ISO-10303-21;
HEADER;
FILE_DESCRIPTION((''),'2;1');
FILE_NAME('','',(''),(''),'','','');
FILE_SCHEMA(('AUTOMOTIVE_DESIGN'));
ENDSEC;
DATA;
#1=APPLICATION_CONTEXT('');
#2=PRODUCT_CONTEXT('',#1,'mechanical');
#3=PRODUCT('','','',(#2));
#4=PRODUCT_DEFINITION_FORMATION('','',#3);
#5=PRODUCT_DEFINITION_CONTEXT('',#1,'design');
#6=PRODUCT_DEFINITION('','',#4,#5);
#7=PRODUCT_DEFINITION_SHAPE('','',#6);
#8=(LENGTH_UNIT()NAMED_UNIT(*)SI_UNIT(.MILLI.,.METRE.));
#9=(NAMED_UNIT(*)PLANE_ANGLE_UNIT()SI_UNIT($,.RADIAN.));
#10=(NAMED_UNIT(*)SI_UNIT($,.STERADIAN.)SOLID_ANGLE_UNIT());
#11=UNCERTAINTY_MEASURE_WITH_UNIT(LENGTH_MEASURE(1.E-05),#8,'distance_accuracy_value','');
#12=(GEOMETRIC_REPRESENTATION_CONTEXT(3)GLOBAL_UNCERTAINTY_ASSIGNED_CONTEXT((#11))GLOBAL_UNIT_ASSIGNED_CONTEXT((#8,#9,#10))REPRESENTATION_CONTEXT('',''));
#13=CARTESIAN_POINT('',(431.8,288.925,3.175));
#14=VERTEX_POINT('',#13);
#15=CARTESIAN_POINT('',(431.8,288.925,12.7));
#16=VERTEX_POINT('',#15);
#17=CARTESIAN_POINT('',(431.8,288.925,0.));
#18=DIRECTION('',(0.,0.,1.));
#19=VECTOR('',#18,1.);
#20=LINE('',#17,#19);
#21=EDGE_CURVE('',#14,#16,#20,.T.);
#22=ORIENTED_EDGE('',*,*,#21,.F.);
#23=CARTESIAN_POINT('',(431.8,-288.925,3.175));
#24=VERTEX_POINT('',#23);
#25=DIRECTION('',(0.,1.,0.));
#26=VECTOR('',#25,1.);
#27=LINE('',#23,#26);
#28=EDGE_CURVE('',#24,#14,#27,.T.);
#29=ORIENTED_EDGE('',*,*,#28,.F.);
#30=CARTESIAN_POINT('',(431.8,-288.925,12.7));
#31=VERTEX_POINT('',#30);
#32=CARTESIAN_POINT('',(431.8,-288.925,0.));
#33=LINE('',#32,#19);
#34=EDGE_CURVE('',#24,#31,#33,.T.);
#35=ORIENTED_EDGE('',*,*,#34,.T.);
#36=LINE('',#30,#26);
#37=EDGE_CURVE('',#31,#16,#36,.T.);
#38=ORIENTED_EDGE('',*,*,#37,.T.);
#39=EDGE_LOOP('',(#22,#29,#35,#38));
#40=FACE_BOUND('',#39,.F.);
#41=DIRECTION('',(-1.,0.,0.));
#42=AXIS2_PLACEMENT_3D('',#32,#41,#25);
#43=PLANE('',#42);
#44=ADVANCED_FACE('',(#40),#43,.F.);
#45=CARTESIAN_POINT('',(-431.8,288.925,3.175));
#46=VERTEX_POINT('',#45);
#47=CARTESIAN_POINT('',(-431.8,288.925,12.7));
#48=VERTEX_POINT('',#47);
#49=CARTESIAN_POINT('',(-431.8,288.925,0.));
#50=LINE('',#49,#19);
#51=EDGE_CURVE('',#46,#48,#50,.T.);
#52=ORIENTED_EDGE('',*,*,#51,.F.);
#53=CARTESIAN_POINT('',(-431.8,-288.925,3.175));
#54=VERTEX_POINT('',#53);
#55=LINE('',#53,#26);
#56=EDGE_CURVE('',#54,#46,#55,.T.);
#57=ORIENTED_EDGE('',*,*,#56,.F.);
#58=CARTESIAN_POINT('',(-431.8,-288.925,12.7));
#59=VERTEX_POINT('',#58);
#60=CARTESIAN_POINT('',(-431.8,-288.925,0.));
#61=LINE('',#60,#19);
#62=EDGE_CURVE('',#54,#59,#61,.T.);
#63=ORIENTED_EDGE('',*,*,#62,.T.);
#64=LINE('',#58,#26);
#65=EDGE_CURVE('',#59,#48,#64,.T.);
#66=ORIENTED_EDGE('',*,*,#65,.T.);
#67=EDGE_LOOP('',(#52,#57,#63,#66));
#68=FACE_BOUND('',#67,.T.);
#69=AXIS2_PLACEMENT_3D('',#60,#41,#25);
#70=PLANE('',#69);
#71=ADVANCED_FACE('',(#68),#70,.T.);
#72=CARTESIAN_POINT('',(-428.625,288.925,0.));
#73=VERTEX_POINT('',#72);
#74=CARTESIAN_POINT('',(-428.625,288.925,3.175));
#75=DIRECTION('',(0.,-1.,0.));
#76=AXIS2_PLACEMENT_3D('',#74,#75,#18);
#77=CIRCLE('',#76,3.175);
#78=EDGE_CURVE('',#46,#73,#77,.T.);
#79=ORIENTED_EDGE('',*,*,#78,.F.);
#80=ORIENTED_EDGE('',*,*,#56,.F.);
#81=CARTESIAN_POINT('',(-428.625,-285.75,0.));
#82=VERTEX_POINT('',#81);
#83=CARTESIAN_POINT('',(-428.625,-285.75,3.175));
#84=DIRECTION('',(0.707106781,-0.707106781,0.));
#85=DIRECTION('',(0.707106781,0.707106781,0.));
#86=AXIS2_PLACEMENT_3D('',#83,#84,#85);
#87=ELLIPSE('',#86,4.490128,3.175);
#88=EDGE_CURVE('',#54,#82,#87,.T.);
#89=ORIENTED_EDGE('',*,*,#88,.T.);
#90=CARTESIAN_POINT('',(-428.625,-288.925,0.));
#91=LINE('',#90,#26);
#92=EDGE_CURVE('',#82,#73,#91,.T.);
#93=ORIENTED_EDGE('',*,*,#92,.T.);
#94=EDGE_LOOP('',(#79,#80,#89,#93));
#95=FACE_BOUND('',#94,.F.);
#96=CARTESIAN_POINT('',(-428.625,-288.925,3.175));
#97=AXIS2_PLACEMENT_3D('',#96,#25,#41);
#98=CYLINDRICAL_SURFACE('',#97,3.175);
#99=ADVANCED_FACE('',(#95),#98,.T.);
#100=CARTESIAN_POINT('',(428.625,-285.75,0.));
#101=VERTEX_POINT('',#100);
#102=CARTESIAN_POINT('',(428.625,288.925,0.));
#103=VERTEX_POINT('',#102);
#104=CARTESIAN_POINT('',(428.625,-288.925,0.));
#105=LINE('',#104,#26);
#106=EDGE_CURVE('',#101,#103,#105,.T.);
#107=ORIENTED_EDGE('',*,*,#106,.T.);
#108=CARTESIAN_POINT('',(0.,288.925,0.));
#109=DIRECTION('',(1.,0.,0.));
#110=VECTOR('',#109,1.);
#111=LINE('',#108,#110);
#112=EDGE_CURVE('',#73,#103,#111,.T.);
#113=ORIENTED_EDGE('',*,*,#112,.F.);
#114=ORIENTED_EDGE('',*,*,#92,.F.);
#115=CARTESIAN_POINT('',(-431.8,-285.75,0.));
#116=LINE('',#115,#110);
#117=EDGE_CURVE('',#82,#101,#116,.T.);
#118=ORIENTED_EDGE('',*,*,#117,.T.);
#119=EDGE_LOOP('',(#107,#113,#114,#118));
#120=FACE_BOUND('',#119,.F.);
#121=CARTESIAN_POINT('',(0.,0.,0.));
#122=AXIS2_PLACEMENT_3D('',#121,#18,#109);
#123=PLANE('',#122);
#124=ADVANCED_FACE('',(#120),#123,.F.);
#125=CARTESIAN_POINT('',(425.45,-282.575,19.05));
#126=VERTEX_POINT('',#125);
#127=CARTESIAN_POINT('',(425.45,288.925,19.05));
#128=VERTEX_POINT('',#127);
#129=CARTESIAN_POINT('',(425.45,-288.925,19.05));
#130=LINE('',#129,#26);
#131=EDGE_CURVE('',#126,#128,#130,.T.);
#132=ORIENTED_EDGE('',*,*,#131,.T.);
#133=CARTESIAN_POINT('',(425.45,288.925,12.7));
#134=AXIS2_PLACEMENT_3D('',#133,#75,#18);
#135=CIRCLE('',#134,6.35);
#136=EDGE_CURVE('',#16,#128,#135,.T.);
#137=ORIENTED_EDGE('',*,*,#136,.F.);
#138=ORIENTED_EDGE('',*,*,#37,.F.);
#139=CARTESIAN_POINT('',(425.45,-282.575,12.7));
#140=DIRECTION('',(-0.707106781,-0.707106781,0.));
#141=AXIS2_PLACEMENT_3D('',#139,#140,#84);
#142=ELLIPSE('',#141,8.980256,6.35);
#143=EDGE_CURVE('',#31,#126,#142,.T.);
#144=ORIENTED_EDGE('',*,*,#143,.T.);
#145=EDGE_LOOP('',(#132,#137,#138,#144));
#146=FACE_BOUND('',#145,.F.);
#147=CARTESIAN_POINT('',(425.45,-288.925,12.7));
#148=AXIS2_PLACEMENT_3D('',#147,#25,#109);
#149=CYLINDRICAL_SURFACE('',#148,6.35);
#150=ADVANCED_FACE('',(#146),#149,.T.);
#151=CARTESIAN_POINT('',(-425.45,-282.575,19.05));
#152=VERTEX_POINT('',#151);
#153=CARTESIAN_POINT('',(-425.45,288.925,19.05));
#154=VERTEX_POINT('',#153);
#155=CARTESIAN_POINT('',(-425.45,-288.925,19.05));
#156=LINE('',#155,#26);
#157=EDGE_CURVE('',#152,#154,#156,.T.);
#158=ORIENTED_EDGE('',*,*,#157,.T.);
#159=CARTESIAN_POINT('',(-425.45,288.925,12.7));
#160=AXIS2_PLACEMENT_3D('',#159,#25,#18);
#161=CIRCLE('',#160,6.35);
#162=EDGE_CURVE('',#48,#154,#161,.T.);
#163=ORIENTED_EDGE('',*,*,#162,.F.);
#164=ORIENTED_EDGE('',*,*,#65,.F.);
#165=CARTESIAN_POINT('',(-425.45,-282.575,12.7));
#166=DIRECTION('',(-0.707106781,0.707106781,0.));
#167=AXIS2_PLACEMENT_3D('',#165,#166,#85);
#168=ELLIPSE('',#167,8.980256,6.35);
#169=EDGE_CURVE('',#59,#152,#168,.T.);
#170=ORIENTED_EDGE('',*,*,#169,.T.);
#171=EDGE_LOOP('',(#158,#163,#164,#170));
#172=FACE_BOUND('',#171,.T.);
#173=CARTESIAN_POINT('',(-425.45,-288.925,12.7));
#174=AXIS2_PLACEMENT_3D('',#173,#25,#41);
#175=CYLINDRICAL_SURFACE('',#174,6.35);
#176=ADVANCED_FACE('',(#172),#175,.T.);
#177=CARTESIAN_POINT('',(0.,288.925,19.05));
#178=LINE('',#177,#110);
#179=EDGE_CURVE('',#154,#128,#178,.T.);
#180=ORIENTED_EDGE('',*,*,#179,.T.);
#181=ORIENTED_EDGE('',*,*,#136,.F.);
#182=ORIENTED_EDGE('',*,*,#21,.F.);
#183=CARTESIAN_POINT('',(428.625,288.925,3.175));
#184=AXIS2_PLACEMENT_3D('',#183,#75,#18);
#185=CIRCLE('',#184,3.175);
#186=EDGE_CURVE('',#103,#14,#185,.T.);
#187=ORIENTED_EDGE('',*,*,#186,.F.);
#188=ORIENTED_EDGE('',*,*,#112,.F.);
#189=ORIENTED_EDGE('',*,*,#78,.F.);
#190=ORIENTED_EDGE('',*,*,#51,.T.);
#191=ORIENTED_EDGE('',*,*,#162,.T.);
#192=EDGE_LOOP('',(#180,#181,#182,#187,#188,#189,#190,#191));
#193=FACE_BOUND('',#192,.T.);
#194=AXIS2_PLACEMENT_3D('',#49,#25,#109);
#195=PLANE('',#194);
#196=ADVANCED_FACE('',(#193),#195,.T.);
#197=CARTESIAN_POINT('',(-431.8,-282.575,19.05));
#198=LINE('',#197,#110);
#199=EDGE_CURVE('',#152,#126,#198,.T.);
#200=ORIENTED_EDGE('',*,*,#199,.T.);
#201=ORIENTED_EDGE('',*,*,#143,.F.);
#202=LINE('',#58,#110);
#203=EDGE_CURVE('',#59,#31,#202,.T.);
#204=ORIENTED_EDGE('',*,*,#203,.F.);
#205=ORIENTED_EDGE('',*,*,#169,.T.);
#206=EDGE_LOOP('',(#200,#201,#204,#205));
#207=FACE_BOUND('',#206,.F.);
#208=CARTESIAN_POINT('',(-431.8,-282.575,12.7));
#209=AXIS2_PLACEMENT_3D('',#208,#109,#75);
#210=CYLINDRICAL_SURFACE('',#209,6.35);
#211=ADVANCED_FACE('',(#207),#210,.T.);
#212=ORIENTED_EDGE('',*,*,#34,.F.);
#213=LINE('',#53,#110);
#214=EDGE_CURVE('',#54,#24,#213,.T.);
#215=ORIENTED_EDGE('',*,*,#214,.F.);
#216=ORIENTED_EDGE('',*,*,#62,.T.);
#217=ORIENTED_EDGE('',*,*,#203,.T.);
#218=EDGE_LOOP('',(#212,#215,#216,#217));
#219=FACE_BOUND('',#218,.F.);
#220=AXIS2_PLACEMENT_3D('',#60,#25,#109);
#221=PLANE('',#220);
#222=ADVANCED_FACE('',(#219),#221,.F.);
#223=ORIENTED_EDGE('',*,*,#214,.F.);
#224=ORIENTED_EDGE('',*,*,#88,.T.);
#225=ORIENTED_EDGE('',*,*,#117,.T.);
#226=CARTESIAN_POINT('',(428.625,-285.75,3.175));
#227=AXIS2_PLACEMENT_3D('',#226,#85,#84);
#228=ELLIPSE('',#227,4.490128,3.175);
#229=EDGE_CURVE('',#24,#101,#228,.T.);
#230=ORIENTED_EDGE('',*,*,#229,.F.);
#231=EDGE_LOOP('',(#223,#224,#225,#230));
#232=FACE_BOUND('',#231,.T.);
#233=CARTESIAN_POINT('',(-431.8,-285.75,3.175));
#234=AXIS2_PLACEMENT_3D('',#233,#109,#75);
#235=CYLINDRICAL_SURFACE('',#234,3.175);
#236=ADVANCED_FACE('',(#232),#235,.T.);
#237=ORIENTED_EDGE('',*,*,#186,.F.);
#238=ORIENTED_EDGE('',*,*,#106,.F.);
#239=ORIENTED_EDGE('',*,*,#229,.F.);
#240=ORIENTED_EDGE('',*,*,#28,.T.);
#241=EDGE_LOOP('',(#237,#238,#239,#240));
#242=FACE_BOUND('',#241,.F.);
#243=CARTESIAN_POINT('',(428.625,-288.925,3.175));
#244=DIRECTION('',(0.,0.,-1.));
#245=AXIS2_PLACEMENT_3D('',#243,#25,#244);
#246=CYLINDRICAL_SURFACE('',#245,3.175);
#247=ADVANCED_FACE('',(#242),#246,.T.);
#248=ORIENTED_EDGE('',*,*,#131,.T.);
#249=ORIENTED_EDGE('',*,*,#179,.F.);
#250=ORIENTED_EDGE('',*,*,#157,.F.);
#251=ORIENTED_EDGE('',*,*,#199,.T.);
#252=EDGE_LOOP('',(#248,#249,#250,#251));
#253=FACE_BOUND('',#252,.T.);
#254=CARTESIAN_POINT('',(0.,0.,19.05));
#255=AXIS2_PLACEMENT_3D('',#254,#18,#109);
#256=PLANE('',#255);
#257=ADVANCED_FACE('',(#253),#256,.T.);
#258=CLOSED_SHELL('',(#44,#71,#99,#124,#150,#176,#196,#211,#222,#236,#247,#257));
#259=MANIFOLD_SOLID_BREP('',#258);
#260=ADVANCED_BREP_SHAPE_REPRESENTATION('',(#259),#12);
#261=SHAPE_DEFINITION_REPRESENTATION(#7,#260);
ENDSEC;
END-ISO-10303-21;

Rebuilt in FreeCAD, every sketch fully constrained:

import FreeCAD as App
import Part
import Sketcher

V = App.Vector
Q = App.Units.Quantity


def edges_at(feature, points):
    """Names of the edges that pass closest to the given points."""
    edges = feature.Shape.Edges
    near = lambda p: min(range(len(edges)), key=lambda i: edges[i].distToShape(Part.Vertex(*p))[0])
    return sorted({f"Edge{near(p) + 1}" for p in points})

doc = App.newDocument("Part")
body = doc.addObject("PartDesign::Body", "Body")

sketch1 = body.newObject("Sketcher::SketchObject", "Sketch")
sketch1.AttachmentSupport = (doc.getObject("XY_Plane"), [""])
sketch1.MapMode = "FlatFace"
sketch1.addGeometry(Part.LineSegment(V(-432, 289, 0), V(-432, -289, 0)), False)
sketch1.addGeometry(Part.LineSegment(V(-432, -289, 0), V(432, -289, 0)), False)
sketch1.addGeometry(Part.LineSegment(V(432, -289, 0), V(432, 289, 0)), False)
sketch1.addGeometry(Part.LineSegment(V(432, 289, 0), V(-432, 289, 0)), False)
sketch1.addConstraint(Sketcher.Constraint("Coincident", 0, 2, 1, 1))
sketch1.addConstraint(Sketcher.Constraint("Coincident", 1, 2, 2, 1))
sketch1.addConstraint(Sketcher.Constraint("Coincident", 2, 2, 3, 1))
sketch1.addConstraint(Sketcher.Constraint("Coincident", 3, 2, 0, 1))
sketch1.addConstraint(Sketcher.Constraint("Vertical", 0))
sketch1.addConstraint(Sketcher.Constraint("Horizontal", 1))
sketch1.addConstraint(Sketcher.Constraint("Vertical", 2))
sketch1.addConstraint(Sketcher.Constraint("Horizontal", 3))
sketch1.addConstraint(Sketcher.Constraint("Symmetric", 0, 2, 2, 2, -1, 1))
sketch1.addConstraint(Sketcher.Constraint("DistanceX", 1, 1, 1, 2, Q("34 in")))
sketch1.addConstraint(Sketcher.Constraint("DistanceY", 0, 2, 0, 1, Q("22.75 in")))
pad1 = body.newObject("PartDesign::Pad", "Pad")
pad1.Profile = sketch1
pad1.Length = Q("0.75 in")
doc.recompute()

fillet = body.newObject("PartDesign::Fillet", "Fillet")
fillet.Base = (pad1, edges_at(pad1, [(-431.8, 0, 19.05), (0, -288.925, 19.05), (431.8, 0, 19.05)]))
fillet.Radius = Q("0.25 in")
doc.recompute()

fillet2 = body.newObject("PartDesign::Fillet", "Fillet001")
fillet2.Base = (fillet, edges_at(fillet, [(-431.8, 0, 0), (0, -288.925, 0), (431.8, 0, 0)]))
fillet2.Radius = Q("0.125 in")

doc.recompute()
